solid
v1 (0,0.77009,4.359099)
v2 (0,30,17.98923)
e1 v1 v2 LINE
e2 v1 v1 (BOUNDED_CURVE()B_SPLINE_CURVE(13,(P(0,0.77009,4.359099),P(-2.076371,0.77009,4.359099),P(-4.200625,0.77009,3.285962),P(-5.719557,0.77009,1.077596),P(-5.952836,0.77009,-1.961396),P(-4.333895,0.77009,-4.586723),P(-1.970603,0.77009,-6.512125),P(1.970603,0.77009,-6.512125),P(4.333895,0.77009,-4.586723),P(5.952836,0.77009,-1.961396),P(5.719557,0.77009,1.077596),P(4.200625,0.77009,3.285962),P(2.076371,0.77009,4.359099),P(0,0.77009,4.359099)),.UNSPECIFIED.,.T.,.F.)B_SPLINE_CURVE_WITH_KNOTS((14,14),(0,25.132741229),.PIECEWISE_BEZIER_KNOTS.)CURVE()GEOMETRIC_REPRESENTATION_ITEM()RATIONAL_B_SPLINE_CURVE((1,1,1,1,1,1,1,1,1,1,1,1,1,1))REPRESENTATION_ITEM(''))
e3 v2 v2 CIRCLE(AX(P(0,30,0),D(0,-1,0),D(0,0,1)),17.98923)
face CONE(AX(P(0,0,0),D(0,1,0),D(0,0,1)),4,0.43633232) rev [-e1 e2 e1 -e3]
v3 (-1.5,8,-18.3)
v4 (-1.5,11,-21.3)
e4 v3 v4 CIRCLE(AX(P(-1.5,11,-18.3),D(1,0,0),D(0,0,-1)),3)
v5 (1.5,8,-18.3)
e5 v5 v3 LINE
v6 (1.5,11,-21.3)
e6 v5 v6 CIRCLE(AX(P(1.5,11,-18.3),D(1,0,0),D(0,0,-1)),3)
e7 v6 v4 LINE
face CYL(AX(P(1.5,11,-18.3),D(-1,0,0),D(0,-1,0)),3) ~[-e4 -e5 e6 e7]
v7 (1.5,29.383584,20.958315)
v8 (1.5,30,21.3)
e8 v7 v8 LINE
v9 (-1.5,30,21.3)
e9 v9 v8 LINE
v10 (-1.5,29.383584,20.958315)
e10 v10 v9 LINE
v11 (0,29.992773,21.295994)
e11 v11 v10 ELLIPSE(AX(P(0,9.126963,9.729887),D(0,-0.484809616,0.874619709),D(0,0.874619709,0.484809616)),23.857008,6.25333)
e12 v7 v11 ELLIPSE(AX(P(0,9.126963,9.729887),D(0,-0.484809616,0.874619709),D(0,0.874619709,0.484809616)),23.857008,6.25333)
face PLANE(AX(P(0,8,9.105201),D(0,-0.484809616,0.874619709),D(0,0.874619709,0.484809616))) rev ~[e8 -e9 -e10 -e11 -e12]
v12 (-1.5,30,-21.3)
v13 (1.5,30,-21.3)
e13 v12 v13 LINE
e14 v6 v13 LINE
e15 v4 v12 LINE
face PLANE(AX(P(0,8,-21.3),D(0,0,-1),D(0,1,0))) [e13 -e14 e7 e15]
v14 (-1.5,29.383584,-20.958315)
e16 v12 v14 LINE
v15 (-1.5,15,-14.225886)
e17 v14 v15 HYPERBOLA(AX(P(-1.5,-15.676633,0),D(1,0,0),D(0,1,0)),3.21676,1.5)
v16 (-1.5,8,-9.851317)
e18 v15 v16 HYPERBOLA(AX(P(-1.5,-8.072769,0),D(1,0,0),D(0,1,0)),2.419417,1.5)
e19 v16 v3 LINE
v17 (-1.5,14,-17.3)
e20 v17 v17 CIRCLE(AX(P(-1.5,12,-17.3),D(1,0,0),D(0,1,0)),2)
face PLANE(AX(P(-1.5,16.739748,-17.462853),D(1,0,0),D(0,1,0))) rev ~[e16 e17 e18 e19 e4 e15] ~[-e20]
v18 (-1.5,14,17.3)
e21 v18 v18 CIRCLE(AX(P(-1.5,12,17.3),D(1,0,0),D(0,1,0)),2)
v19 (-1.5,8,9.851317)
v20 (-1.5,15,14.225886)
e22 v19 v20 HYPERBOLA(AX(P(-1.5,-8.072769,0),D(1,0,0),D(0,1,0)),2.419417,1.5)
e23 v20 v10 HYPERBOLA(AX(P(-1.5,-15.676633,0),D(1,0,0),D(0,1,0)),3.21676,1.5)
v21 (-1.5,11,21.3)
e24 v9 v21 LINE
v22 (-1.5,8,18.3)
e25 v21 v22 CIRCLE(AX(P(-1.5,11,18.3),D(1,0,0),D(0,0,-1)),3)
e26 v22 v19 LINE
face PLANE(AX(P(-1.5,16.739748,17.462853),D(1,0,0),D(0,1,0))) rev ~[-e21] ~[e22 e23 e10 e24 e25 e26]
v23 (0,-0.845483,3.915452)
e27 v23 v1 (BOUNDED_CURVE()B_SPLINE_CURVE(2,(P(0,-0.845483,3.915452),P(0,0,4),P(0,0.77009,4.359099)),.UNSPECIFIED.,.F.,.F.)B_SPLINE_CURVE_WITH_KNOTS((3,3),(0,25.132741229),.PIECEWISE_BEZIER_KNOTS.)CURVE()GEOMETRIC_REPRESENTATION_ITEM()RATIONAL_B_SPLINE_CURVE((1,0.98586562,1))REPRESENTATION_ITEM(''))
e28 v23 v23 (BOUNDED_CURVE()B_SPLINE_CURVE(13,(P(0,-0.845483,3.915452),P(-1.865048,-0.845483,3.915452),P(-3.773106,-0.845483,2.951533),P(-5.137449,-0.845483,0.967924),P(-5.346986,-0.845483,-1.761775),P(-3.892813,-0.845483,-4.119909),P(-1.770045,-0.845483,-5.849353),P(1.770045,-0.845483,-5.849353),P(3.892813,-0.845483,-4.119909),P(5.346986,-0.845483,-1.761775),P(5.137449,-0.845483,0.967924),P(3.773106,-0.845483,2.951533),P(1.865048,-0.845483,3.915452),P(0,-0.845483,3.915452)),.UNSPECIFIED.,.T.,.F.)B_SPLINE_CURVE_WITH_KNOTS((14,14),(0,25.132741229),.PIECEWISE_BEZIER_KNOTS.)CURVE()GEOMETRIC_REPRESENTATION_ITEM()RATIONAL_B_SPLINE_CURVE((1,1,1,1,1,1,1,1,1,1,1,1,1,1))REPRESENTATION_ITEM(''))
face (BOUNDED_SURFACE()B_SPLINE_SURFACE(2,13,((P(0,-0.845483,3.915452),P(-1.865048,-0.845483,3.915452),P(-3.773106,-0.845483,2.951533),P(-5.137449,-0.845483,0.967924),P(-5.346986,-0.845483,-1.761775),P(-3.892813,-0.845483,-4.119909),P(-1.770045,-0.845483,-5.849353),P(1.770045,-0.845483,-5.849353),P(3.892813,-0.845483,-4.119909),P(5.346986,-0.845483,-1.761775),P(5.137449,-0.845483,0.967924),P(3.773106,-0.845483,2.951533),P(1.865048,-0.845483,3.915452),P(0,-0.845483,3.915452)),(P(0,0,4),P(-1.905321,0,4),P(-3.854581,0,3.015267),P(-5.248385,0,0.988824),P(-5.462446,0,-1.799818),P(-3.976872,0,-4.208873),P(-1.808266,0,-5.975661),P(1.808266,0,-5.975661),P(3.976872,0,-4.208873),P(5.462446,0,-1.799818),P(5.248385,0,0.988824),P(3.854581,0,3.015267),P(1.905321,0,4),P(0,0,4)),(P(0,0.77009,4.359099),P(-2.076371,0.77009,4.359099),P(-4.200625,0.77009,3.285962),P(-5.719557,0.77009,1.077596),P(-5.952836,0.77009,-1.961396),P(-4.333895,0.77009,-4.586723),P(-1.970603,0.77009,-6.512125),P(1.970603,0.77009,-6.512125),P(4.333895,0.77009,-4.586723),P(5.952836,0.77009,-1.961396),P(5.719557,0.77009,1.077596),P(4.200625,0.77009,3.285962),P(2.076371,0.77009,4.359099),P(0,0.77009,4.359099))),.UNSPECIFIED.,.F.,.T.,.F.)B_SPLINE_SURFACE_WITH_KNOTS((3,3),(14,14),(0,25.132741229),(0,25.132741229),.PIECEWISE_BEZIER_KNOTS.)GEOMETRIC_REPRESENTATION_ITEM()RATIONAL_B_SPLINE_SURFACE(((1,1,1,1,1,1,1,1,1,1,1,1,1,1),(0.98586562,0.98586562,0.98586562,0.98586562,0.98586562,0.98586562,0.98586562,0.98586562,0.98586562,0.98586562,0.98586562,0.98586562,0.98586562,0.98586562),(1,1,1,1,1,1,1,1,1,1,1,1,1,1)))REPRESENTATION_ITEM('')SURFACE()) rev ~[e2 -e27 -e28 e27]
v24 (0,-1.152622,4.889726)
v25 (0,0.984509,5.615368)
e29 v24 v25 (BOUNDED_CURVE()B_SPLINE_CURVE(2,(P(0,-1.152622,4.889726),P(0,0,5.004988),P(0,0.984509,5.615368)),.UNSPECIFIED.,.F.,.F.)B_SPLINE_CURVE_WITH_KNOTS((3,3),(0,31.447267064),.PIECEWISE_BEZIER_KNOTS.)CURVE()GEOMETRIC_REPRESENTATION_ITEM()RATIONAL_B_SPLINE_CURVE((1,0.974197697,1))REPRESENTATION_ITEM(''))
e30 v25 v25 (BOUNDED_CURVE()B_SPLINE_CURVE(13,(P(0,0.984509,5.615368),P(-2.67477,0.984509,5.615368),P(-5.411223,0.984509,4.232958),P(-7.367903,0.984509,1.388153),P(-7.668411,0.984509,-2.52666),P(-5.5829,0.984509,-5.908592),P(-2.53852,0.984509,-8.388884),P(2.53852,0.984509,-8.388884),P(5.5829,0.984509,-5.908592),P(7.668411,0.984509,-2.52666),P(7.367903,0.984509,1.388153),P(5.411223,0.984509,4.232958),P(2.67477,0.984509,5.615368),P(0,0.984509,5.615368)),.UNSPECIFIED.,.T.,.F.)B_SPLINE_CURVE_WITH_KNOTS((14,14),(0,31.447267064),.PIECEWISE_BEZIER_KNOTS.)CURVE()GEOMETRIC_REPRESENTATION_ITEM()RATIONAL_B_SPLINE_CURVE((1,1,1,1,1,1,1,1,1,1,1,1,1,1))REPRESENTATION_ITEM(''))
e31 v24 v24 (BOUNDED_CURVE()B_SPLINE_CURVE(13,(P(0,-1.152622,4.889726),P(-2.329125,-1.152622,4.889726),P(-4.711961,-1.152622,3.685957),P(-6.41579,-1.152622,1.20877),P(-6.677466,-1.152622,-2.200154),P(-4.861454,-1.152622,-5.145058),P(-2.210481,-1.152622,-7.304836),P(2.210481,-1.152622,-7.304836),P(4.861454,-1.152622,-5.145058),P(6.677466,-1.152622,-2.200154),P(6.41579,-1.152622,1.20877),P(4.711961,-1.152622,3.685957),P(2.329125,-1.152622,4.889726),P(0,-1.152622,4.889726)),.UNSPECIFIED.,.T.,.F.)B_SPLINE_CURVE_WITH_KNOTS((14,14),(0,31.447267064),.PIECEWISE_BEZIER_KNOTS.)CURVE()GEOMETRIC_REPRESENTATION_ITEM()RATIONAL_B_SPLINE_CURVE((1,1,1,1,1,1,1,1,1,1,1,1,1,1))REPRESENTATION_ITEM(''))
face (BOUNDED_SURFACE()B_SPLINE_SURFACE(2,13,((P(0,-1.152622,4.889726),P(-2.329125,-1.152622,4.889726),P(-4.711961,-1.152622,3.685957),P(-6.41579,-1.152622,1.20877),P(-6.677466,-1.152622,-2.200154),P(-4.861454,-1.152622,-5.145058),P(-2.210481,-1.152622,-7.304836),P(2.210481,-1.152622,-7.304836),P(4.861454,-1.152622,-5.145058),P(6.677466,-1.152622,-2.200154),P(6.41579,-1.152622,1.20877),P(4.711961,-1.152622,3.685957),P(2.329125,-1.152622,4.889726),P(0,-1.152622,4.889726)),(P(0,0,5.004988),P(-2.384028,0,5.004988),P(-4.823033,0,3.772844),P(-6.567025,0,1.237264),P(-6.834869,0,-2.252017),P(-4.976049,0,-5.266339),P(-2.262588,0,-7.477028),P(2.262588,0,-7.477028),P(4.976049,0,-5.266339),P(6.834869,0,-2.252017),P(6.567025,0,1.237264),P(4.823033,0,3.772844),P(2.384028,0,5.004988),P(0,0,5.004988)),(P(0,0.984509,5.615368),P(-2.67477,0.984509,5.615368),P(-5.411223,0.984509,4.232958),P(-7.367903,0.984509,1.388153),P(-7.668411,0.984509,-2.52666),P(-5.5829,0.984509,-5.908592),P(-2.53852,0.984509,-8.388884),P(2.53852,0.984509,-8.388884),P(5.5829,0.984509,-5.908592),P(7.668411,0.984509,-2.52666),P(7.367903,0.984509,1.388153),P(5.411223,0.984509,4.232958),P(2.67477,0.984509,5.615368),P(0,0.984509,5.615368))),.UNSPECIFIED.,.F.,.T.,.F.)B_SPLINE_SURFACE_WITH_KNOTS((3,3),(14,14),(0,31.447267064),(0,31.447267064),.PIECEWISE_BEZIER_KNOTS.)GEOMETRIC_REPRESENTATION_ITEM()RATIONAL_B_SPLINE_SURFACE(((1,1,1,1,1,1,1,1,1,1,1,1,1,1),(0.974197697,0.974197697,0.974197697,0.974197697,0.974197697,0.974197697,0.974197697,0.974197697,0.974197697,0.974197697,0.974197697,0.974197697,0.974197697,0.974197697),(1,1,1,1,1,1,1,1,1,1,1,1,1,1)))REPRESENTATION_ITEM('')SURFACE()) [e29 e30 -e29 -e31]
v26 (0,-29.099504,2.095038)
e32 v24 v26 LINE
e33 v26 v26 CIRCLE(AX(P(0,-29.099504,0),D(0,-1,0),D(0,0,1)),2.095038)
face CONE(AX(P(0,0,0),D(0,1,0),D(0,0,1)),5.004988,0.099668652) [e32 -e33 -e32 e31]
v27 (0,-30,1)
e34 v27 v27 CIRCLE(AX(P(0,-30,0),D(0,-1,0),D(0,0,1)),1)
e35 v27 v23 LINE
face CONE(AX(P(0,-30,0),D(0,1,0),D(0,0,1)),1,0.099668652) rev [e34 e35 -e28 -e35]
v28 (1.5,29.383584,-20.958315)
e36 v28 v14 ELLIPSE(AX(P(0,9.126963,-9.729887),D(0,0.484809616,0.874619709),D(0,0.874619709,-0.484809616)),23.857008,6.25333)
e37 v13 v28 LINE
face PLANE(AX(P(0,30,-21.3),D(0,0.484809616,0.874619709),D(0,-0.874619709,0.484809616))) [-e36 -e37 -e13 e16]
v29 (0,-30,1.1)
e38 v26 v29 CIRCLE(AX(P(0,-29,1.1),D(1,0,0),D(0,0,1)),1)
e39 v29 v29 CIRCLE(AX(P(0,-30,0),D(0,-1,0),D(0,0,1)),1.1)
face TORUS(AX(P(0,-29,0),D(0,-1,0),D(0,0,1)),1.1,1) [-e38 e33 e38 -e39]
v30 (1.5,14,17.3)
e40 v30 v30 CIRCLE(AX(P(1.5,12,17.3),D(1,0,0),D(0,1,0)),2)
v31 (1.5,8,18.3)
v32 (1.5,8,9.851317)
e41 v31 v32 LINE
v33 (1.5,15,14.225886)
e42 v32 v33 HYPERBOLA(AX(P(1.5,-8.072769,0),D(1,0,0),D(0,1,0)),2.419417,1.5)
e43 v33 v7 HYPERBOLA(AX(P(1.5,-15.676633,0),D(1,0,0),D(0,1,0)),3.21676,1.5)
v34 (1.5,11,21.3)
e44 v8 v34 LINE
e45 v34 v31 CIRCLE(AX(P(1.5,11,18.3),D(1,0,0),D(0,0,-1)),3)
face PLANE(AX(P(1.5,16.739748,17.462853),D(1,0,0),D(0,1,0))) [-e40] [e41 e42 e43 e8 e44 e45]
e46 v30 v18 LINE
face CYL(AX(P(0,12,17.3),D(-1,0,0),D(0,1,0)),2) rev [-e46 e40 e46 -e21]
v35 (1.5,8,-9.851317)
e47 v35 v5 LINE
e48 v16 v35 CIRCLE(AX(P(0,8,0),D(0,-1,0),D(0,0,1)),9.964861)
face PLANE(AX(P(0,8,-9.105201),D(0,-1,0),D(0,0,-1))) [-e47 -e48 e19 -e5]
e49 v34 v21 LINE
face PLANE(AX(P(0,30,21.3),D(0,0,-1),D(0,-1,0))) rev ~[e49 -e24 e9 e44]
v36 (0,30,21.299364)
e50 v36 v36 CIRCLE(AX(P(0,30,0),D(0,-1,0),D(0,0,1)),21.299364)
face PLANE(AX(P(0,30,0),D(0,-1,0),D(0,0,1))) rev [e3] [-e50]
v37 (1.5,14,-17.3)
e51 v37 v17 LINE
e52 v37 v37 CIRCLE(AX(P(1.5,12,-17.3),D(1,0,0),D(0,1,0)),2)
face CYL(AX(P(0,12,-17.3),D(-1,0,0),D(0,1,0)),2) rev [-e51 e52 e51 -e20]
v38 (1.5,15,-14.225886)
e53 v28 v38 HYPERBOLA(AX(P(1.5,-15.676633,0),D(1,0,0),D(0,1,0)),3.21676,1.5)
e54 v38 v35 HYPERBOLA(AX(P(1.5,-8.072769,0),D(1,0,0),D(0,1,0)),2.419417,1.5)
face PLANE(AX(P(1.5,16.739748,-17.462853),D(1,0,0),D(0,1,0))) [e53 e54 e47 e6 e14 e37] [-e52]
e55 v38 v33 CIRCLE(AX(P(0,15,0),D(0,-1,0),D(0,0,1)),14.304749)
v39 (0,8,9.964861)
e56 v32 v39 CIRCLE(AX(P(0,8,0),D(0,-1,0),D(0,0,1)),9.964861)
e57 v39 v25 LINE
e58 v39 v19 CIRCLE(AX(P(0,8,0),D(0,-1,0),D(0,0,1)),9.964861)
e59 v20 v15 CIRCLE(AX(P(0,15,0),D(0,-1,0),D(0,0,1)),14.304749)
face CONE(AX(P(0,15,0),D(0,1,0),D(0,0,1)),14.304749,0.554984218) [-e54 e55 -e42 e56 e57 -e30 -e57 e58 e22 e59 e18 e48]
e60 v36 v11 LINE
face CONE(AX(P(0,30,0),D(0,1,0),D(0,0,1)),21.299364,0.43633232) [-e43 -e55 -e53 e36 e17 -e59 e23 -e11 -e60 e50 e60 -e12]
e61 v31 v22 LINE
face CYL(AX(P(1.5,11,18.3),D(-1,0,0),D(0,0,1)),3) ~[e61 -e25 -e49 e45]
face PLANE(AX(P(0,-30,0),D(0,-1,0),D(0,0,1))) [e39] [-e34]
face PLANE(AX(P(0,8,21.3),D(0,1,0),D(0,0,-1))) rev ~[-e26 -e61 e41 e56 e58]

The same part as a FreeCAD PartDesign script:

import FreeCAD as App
import Part
import Sketcher
Q = App.Units.Quantity


def edges_at(feature, points):
    """Names of the edges that pass closest to the given points."""
    edges = feature.Shape.Edges
    near = lambda p: min(range(len(edges)), key=lambda i: edges[i].distToShape(Part.Vertex(*p))[0])
    return sorted({f"Edge{near(p) + 1}" for p in points})


def add_polygon(sketch, points):
    """Adds a closed chain of lines whose ends are joined by coincident constraints."""
    first, n = sketch.GeometryCount, len(points)
    for a, b in zip(points, points[1:] + points[:1]):
        sketch.addGeometry(Part.LineSegment(App.Vector(*a, 0), App.Vector(*b, 0)), False)
    for i in range(n):
        sketch.addConstraint(Sketcher.Constraint("Coincident", first + i, 2, first + (i + 1) % n, 1))

doc = App.newDocument("Part")
params = doc.addObject("Spreadsheet::Sheet", "Params")
for row, (alias, value) in enumerate([
    ("revolution_angle", "360 deg"),
    ("sketch2_diameter", "4 mm"),
    ("sketch2_width", "22 mm"),
    ("pad1_length", "3 mm"),
    ("fillet_radius", "1 mm"),
    ("fillet2_radius", "5 mm"),
    ("fillet3_radius", "5 mm"),
    ("fillet4_radius", "3 mm"),
], start=1):
    params.set(f"A{row}", alias)
    params.set(f"B{row}", "=" + value)
    params.setAlias(f"B{row}", alias)

body = doc.addObject("PartDesign::Body", "Body")

# Sketch on YZ plane
sketch1 = body.newObject("Sketcher::SketchObject", "Sketch")
sketch1.AttachmentSupport = (doc.getObject("YZ_Plane"), [""])
sketch1.MapMode = "FlatFace"
add_polygon(sketch1, [(-30, 2.004988), (-30, 1), (0, 4), (30, 17.98923), (30, 21.299364), (15, 14.304749), (0, 5.004988)])  # lines 0-6
sketch1.addConstraint(Sketcher.Constraint("Vertical", 0))
sketch1.addConstraint(Sketcher.Constraint("Vertical", 3))
sketch1.addConstraint(Sketcher.Constraint("PointOnObject", 1, 2, -2))
sketch1.addConstraint(Sketcher.Constraint("PointOnObject", 5, 2, -2))
sketch1.addConstraint(Sketcher.Constraint("Parallel", 2, 4))
sketch1.addConstraint(Sketcher.Constraint("Parallel", 1, 6))
sketch1.addConstraint(Sketcher.Constraint("Angle", 2, Q("25 deg")))
sketch1.addConstraint(Sketcher.Constraint("DistanceX", 0, 2, -1, 1, 30.0))
sketch1.addConstraint(Sketcher.Constraint("DistanceY", -1, 1, 0, 2, 1.0))
sketch1.addConstraint(Sketcher.Constraint("DistanceY", -1, 1, 1, 2, 4.0))
sketch1.addConstraint(Sketcher.Constraint("DistanceX", -1, 1, 2, 2, 30.0))
sketch1.addConstraint(Sketcher.Constraint("DistanceX", -1, 1, 4, 2, 15.0))
sketch1.addConstraint(Sketcher.Constraint("DistanceY", 0, 2, 0, 1, 1.004988))
sketch1.addConstraint(Sketcher.Constraint("DistanceY", 3, 1, 3, 2, 3.310134))
revolution = body.newObject("PartDesign::Revolution", "Revolution")
revolution.Profile = sketch1
revolution.ReferenceAxis = (sketch1, ["H_Axis"])
revolution.setExpression("Angle", "Params.revolution_angle")

# Sketch on YZ plane
sketch2 = body.newObject("Sketcher::SketchObject", "Sketch001")
sketch2.AttachmentSupport = (doc.getObject("YZ_Plane"), [""])
sketch2.MapMode = "FlatFace"
add_polygon(sketch2, [(8, 9.105201), (30, 21.3), (8, 21.3)])  # lines 0-2
sketch2.addGeometry(Part.Circle(App.Vector(12, 17.3, 0), App.Vector(0, 0, 1), 2), False)  # 3
add_polygon(sketch2, [(8, -21.3), (30, -21.3), (8, -9.105201)])  # lines 4-6
sketch2.addGeometry(Part.Circle(App.Vector(12, -17.3, 0), App.Vector(0, 0, 1), 2), False)  # 7
sketch2.addConstraint(Sketcher.Constraint("Horizontal", 1))
sketch2.addConstraint(Sketcher.Constraint("Vertical", 2))
sketch2.addConstraint(Sketcher.Constraint("Horizontal", 4))
sketch2.addConstraint(Sketcher.Constraint("Vertical", 6))
sketch2.addConstraint(Sketcher.Constraint("Equal", 3, 7))
sketch2.addConstraint(Sketcher.Constraint("Symmetric", 3, 3, 7, 3, -1))
sketch2.addConstraint(Sketcher.Constraint("Symmetric", 0, 2, 4, 2, -1))
sketch2.addConstraint(Sketcher.Constraint("Symmetric", 2, 2, 5, 2, -1))
sketch2.addConstraint(Sketcher.Constraint("Diameter", 3, 4.0))
sketch2.addConstraint(Sketcher.Constraint("DistanceX", 1, 2, 1, 1, 22.0))
sketch2.addConstraint(Sketcher.Constraint("Angle", 0, Q("29 deg")))
sketch2.addConstraint(Sketcher.Constraint("DistanceX", -1, 1, 3, 3, 12.0))
sketch2.addConstraint(Sketcher.Constraint("DistanceX", -1, 1, 0, 2, 30.0))
sketch2.addConstraint(Sketcher.Constraint("DistanceY", 3, 3, 0, 2, 4.0))
sketch2.addConstraint(Sketcher.Constraint("DistanceY", -1, 1, 3, 3, 17.3))
sketch2.setExpression("Constraints[14]", "Params.sketch2_diameter")
sketch2.setExpression("Constraints[15]", "Params.sketch2_width")
pad1 = body.newObject("PartDesign::Pad", "Pad")
pad1.Profile = sketch2
pad1.setExpression("Length", "Params.pad1_length")
pad1.Midplane = True
doc.recompute()

fillet = body.newObject("PartDesign::Fillet", "Fillet")
fillet.Base = (pad1, edges_at(pad1, [(0, -30, -2.005)]))
fillet.setExpression("Radius", "Params.fillet_radius")
doc.recompute()

fillet2 = body.newObject("PartDesign::Fillet", "Fillet001")
fillet2.Base = (fillet, edges_at(fillet, [(0, 0, -5.005)]))
fillet2.setExpression("Radius", "Params.fillet2_radius")
doc.recompute()

fillet3 = body.newObject("PartDesign::Fillet", "Fillet002")
fillet3.Base = (fillet2, edges_at(fillet2, [(0, 0, -4)]))
fillet3.setExpression("Radius", "Params.fillet3_radius")
doc.recompute()

fillet4 = body.newObject("PartDesign::Fillet", "Fillet003")
fillet4.Base = (fillet3, edges_at(fillet3, [(0, 8, 21.3), (0, 8, -21.3)]))
fillet4.setExpression("Radius", "Params.fillet4_radius")

doc.recompute()
